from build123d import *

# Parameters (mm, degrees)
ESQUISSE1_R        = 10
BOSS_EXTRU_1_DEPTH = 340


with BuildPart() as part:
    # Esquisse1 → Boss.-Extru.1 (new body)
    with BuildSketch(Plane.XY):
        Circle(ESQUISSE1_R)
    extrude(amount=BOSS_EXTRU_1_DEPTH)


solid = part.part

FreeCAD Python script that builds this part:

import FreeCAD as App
import Part
import Sketcher
from FreeCAD import Vector
Q = App.Units.Quantity

doc = App.newDocument("Part")
body = doc.addObject("PartDesign::Body", "Body")

sketch1 = body.newObject("Sketcher::SketchObject", "Sketch")
sketch1.AttachmentSupport = (doc.getObject("XY_Plane"), [""])
sketch1.MapMode = "FlatFace"
sketch1.addGeometry(Part.Circle(Vector(0, 0, 0), Vector(0, 0, 1), 10), False)
sketch1.addConstraint(Sketcher.Constraint("Coincident", 0, 3, -1, 1))
sketch1.addConstraint(Sketcher.Constraint("Diameter", 0, Q("20 mm")))
pad1 = body.newObject("PartDesign::Pad", "Pad")
pad1.Profile = sketch1
pad1.Length = 340

doc.recompute()
